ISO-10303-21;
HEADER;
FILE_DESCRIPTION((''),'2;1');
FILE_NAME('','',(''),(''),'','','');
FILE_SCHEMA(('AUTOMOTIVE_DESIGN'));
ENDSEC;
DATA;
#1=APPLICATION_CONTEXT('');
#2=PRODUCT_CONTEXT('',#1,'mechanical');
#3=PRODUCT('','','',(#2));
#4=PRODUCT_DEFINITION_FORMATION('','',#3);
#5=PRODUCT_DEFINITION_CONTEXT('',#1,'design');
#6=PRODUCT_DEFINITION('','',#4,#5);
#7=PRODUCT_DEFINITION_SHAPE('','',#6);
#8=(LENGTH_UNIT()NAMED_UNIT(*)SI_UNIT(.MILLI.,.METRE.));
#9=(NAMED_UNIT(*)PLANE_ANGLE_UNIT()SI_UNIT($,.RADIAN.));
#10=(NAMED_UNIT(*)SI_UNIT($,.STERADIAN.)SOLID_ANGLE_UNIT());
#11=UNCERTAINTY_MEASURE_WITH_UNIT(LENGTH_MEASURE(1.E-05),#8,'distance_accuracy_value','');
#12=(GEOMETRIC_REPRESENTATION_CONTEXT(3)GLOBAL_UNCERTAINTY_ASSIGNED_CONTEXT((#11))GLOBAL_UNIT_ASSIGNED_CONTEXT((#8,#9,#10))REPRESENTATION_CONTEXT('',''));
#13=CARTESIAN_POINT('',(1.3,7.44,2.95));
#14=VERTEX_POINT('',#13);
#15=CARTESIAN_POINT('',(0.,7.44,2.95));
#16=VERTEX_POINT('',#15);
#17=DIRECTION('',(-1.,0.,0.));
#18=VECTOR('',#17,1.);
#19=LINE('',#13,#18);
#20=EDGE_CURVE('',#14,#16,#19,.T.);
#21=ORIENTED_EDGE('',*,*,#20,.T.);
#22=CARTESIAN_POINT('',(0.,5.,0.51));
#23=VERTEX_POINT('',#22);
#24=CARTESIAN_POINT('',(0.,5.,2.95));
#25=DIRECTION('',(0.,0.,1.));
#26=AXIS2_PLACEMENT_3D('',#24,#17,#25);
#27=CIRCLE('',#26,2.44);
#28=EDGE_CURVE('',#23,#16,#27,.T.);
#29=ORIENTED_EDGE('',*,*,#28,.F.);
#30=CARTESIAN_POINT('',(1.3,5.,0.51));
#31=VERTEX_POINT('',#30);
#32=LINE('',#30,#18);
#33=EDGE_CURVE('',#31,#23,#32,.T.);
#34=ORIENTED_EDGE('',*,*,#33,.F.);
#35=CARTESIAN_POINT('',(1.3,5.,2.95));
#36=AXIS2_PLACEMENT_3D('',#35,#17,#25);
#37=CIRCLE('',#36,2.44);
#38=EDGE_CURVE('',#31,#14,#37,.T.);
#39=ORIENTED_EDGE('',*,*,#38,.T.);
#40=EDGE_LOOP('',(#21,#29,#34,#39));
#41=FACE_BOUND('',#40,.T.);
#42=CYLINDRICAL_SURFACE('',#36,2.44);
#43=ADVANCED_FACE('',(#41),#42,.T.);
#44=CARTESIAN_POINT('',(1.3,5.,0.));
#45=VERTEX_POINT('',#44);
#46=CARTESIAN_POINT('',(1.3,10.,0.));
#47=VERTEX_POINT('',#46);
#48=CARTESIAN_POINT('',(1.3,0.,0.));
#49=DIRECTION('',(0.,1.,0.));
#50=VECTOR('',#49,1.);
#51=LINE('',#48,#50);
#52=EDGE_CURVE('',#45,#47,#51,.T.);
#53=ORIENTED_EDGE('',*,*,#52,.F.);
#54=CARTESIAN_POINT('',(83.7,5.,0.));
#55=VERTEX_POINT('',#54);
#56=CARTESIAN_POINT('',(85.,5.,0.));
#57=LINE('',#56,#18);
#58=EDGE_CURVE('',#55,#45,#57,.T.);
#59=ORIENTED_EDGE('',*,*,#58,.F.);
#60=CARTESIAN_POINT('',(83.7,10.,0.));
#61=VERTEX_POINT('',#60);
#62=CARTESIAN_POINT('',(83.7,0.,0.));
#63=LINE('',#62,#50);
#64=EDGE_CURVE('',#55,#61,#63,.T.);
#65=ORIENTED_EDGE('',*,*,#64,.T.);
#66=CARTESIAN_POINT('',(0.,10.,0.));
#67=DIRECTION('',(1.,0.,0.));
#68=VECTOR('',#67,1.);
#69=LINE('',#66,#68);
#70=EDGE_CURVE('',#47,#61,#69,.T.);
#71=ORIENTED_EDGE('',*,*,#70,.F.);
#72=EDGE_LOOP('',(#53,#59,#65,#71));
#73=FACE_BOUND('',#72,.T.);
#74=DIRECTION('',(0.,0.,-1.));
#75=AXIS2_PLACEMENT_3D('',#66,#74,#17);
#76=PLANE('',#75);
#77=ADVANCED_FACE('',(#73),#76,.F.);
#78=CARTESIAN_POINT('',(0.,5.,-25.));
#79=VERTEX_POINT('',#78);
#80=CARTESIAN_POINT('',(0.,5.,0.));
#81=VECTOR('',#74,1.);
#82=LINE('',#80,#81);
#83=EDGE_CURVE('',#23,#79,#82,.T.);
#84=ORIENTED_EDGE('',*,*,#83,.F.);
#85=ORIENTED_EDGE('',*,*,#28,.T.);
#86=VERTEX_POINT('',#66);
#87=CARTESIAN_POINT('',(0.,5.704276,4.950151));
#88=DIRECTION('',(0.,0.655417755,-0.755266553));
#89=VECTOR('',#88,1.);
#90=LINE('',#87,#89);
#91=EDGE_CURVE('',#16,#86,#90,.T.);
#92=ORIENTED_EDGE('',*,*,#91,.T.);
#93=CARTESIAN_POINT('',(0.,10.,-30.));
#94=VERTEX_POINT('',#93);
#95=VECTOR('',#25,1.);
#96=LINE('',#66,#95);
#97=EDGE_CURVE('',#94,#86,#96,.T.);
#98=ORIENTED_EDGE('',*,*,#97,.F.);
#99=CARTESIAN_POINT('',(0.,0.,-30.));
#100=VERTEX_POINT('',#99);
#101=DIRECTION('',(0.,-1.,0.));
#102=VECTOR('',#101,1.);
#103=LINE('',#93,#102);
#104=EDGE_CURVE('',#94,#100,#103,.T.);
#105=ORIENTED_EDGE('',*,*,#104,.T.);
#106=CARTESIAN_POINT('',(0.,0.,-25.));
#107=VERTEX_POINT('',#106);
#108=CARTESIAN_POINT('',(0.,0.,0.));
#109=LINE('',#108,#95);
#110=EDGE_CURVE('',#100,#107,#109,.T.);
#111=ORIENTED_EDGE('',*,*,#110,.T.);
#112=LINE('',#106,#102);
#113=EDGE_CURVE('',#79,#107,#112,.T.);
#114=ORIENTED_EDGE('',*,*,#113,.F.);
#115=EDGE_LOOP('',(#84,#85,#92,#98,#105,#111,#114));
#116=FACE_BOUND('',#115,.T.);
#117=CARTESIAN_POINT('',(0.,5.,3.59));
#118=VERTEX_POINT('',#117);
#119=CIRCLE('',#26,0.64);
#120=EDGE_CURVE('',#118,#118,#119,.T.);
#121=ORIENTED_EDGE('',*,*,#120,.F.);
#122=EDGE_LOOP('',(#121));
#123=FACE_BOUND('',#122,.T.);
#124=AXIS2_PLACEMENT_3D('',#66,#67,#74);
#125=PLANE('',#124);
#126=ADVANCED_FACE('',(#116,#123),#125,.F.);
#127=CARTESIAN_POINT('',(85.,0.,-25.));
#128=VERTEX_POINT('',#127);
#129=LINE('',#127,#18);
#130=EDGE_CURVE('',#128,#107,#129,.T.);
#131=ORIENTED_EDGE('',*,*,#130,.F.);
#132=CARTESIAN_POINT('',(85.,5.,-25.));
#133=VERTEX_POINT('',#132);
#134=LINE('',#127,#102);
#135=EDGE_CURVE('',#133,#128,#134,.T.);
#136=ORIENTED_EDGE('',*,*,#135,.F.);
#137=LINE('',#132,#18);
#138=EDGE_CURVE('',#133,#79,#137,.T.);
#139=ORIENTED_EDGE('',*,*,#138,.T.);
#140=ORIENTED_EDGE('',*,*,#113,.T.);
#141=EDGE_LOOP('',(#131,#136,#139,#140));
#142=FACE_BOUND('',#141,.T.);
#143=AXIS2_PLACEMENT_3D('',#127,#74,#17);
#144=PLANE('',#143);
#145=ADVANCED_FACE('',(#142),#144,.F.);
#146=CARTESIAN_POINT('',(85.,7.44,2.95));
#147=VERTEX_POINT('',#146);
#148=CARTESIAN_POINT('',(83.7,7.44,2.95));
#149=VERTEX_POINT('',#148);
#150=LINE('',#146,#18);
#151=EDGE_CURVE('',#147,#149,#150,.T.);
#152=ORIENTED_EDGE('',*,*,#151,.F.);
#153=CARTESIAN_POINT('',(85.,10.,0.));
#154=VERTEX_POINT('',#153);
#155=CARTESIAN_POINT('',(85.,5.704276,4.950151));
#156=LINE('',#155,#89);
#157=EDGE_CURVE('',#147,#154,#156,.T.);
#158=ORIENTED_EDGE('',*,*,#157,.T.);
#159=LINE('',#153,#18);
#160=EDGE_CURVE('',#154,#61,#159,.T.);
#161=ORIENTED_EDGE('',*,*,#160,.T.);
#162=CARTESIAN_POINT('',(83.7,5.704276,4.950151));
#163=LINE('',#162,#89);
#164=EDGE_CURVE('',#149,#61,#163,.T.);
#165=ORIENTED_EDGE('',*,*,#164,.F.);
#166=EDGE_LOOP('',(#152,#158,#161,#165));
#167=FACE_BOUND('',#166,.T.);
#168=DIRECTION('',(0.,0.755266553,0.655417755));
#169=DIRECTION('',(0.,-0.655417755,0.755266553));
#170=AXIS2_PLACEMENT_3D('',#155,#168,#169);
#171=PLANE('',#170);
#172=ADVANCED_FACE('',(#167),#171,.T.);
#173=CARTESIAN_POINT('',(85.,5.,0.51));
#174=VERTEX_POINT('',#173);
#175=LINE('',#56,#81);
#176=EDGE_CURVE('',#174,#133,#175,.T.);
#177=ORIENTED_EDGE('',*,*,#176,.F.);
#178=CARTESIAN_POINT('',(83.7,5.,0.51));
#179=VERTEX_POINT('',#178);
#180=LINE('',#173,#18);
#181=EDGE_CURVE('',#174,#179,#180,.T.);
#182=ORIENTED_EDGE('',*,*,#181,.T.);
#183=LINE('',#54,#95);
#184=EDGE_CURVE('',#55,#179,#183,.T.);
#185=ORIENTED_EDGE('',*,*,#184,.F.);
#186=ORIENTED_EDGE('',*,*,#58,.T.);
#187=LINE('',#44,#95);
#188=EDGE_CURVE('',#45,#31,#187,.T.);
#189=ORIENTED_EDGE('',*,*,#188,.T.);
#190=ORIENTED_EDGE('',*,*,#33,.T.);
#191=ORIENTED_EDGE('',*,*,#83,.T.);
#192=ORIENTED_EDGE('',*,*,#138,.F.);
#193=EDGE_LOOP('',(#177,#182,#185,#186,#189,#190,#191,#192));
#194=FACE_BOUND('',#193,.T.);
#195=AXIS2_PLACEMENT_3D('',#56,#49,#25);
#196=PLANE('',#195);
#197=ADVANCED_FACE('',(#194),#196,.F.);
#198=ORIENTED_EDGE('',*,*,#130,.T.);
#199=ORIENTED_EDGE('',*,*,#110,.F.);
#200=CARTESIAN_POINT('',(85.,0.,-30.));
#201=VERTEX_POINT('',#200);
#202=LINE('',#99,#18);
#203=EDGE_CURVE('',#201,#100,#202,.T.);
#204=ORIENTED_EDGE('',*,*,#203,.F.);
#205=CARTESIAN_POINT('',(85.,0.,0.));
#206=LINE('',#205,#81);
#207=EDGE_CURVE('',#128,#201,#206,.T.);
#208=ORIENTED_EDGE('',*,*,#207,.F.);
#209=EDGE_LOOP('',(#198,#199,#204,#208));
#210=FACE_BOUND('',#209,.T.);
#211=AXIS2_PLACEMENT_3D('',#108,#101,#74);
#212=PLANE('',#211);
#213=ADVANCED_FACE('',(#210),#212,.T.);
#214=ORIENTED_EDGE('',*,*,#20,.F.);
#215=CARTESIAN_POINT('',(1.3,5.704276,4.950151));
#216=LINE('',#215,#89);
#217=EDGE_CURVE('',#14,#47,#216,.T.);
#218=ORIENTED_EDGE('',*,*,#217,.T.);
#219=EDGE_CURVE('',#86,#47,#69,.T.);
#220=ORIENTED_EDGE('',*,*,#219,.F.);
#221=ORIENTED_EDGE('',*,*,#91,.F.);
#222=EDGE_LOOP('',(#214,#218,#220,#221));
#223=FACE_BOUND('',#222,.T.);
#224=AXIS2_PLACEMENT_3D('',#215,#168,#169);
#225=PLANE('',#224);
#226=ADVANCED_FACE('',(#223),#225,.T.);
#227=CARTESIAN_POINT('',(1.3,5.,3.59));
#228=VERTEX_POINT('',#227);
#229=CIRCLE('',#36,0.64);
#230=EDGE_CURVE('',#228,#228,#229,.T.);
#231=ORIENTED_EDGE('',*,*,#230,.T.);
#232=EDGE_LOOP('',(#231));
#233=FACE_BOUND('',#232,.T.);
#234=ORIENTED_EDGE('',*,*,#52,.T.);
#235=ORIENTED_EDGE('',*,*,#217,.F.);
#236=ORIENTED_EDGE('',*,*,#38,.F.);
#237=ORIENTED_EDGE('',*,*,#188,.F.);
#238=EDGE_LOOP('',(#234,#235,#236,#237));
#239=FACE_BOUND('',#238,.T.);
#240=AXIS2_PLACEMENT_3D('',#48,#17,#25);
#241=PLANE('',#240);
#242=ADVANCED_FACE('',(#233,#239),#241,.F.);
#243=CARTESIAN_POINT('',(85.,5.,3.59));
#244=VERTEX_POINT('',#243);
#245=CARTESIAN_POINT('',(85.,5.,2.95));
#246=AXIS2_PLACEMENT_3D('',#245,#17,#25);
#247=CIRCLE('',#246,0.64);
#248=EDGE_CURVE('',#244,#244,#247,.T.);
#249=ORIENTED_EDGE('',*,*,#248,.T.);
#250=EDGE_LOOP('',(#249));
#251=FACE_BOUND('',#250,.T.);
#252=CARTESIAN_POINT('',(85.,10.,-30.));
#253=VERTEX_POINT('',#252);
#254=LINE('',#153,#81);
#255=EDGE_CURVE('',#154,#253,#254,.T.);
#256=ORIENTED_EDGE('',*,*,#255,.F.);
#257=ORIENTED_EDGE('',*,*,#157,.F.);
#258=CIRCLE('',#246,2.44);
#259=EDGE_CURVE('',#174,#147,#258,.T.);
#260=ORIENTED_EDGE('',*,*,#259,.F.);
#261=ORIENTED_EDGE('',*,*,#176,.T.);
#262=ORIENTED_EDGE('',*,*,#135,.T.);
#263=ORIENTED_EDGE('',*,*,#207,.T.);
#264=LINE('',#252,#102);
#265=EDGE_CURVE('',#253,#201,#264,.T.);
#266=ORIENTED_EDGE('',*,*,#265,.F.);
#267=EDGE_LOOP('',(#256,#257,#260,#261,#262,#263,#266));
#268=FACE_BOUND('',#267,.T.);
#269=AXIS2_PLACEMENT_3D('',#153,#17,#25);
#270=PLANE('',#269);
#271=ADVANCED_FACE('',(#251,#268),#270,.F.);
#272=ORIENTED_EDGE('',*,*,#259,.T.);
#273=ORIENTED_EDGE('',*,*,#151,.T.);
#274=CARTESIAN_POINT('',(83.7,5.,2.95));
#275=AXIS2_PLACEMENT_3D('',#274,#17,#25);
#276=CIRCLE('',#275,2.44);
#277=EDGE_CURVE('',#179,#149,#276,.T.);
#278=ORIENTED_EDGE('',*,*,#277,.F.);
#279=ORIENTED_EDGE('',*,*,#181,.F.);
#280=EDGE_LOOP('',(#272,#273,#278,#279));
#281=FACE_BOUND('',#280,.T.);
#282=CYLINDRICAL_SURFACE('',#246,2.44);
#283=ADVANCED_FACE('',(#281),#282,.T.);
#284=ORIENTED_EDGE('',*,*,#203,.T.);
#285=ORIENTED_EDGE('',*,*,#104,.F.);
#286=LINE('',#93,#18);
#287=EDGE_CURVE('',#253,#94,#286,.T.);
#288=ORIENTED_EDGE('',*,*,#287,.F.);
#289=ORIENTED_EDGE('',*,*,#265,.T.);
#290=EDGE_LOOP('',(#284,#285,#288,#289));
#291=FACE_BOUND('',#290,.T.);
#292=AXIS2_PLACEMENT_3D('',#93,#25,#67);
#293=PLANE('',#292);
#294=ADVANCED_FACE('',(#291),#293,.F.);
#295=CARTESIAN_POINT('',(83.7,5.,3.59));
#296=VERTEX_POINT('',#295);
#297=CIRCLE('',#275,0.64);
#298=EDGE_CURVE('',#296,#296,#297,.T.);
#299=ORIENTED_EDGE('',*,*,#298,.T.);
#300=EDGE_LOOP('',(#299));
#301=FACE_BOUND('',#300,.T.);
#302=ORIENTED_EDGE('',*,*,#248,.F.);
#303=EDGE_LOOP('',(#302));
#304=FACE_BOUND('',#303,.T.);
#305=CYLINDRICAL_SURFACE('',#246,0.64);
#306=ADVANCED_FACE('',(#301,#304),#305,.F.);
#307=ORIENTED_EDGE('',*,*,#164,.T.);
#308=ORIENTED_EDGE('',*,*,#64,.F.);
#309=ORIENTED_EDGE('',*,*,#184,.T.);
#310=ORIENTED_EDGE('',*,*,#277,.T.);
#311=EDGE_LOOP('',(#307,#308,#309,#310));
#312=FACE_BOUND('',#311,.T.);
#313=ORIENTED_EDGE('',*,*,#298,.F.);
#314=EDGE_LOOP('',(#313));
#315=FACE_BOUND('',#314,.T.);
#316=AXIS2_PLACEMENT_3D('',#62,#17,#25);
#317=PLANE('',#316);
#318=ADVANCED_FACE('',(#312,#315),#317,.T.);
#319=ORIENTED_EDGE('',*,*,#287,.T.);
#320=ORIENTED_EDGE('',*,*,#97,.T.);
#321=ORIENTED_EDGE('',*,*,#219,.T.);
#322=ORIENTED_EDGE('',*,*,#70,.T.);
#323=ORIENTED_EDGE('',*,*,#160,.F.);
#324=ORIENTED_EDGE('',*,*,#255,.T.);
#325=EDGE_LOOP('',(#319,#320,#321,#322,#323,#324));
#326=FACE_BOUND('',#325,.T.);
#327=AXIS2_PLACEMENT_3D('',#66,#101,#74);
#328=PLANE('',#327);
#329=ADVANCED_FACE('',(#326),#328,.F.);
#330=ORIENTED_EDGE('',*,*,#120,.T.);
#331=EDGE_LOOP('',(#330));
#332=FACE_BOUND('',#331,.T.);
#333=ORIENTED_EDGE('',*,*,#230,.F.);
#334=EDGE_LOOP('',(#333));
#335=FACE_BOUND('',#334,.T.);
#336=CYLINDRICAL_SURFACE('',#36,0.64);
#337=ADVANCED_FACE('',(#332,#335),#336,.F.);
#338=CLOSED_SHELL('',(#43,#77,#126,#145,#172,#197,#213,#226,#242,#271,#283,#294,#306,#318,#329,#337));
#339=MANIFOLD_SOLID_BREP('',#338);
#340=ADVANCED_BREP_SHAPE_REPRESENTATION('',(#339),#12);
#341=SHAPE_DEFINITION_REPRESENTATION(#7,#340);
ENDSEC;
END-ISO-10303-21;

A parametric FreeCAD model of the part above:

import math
import FreeCAD as App
import Part
import Sketcher

V = App.Vector
Q = App.Units.Quantity

doc = App.newDocument("Part")
params = doc.addObject("Spreadsheet::Sheet", "Params")
for row, (alias, value) in enumerate([
    ("sketch1_width", "85 mm"),
    ("sketch1_height", "30 mm"),
    ("pad1_length", "10 mm"),
    ("sketch2_width", "5 mm"),
    ("sketch2_height", "25 mm"),
    ("sketch3_diameter", "1.28 mm"),
    ("sketch3_width", "5 mm"),
    ("sketch3_radius", "2.44 mm"),
    ("sketch3_height", "0.51 mm"),
    ("pad2_length", "1.3 mm"),
    ("linearpattern_pitch", "83.7 mm"),
], start=1):
    params.set(f"A{row}", alias)
    params.set(f"B{row}", "=" + value)
    params.setAlias(f"B{row}", alias)

body = doc.addObject("PartDesign::Body", "Body")

# Sketch on XZ plane
sketch1 = body.newObject("Sketcher::SketchObject", "Sketch")
sketch1.AttachmentSupport = (doc.getObject("XZ_Plane"), [""])
sketch1.MapMode = "FlatFace"
sketch1.addGeometry(Part.LineSegment(V(0, -30, 0), V(0, 0, 0)), False)
sketch1.addGeometry(Part.LineSegment(V(0, 0, 0), V(85, 0, 0)), False)
sketch1.addGeometry(Part.LineSegment(V(85, 0, 0), V(85, -30, 0)), False)
sketch1.addGeometry(Part.LineSegment(V(85, -30, 0), V(0, -30, 0)), False)
sketch1.addConstraint(Sketcher.Constraint("Coincident", 0, 2, 1, 1))
sketch1.addConstraint(Sketcher.Constraint("Coincident", 1, 2, 2, 1))
sketch1.addConstraint(Sketcher.Constraint("Coincident", 2, 2, 3, 1))
sketch1.addConstraint(Sketcher.Constraint("Coincident", 3, 2, 0, 1))
sketch1.addConstraint(Sketcher.Constraint("Vertical", 0))
sketch1.addConstraint(Sketcher.Constraint("Horizontal", 1))
sketch1.addConstraint(Sketcher.Constraint("Vertical", 2))
sketch1.addConstraint(Sketcher.Constraint("Horizontal", 3))
sketch1.addConstraint(Sketcher.Constraint("Coincident", 0, 2, -1, 1))
sketch1.addConstraint(Sketcher.Constraint("DistanceX", 1, 1, 1, 2, Q("85 mm")))
sketch1.addConstraint(Sketcher.Constraint("DistanceY", 0, 1, 0, 2, Q("30 mm")))
sketch1.setExpression("Constraints[9]", "Params.sketch1_width")
sketch1.setExpression("Constraints[10]", "Params.sketch1_height")
pad1 = body.newObject("PartDesign::Pad", "Pad")
pad1.Profile = sketch1
pad1.setExpression("Length", "Params.pad1_length")
pad1.Reversed = True

# Sketch on YZ plane
sketch2 = body.newObject("Sketcher::SketchObject", "Sketch001")
sketch2.AttachmentSupport = (doc.getObject("YZ_Plane"), [""])
sketch2.MapMode = "FlatFace"
sketch2.addGeometry(Part.LineSegment(V(5, -25, 0), V(0, -25, 0)), False)
sketch2.addGeometry(Part.LineSegment(V(0, -25, 0), V(0, 0, 0)), False)
sketch2.addGeometry(Part.LineSegment(V(0, 0, 0), V(5, 0, 0)), False)
sketch2.addGeometry(Part.LineSegment(V(5, 0, 0), V(5, -25, 0)), False)
sketch2.addConstraint(Sketcher.Constraint("Coincident", 0, 2, 1, 1))
sketch2.addConstraint(Sketcher.Constraint("Coincident", 1, 2, 2, 1))
sketch2.addConstraint(Sketcher.Constraint("Coincident", 2, 2, 3, 1))
sketch2.addConstraint(Sketcher.Constraint("Coincident", 3, 2, 0, 1))
sketch2.addConstraint(Sketcher.Constraint("Horizontal", 0))
sketch2.addConstraint(Sketcher.Constraint("Vertical", 1))
sketch2.addConstraint(Sketcher.Constraint("Horizontal", 2))
sketch2.addConstraint(Sketcher.Constraint("Vertical", 3))
sketch2.addConstraint(Sketcher.Constraint("Coincident", 1, 2, -1, 1))
sketch2.addConstraint(Sketcher.Constraint("DistanceX", 0, 2, 0, 1, Q("5 mm")))
sketch2.addConstraint(Sketcher.Constraint("DistanceY", 1, 1, 1, 2, Q("25 mm")))
sketch2.setExpression("Constraints[9]", "Params.sketch2_width")
sketch2.setExpression("Constraints[10]", "Params.sketch2_height")
pocket1 = body.newObject("PartDesign::Pocket", "Pocket")
pocket1.Profile = sketch2
pocket1.Type = "ThroughAll"
pocket1.Reversed = True

# Sketch on YZ plane
sketch3 = body.newObject("Sketcher::SketchObject", "Sketch002")
sketch3.AttachmentSupport = (doc.getObject("YZ_Plane"), [""])
sketch3.MapMode = "FlatFace"
sketch3.addGeometry(Part.LineSegment(V(10, 0, 0), V(5, 0, 0)), False)
sketch3.addGeometry(Part.LineSegment(V(5, 0, 0), V(5, 0.51, 0)), False)
sketch3.addGeometry(Part.ArcOfCircle(Part.Circle(V(5, 2.95, 0), V(0, 0, 1), 2.44), math.radians(0), math.radians(270)), False)
sketch3.addGeometry(Part.LineSegment(V(7.44, 2.95, 0), V(10, 0, 0)), False)
sketch3.addGeometry(Part.Circle(V(5, 2.95, 0), V(0, 0, 1), 0.64), False)
sketch3.addConstraint(Sketcher.Constraint("Coincident", 0, 2, 1, 1))
sketch3.addConstraint(Sketcher.Constraint("Coincident", 1, 2, 2, 2))
sketch3.addConstraint(Sketcher.Constraint("Coincident", 2, 1, 3, 1))
sketch3.addConstraint(Sketcher.Constraint("Coincident", 3, 2, 0, 1))
sketch3.addConstraint(Sketcher.Constraint("Horizontal", 0))
sketch3.addConstraint(Sketcher.Constraint("Vertical", 1))
sketch3.addConstraint(Sketcher.Constraint("Coincident", 4, 3, 2, 3))
sketch3.addConstraint(Sketcher.Constraint("PointOnObject", 0, 2, -1))
sketch3.addConstraint(Sketcher.Constraint("Horizontal", 4, 3, 2, 1))
sketch3.addConstraint(Sketcher.Constraint("Vertical", 4, 3, 0, 2))
sketch3.addConstraint(Sketcher.Constraint("Diameter", 4, Q("1.28 mm")))
sketch3.addConstraint(Sketcher.Constraint("DistanceX", 0, 2, 0, 1, Q("5 mm")))
sketch3.addConstraint(Sketcher.Constraint("Radius", 2, Q("2.44 mm")))
sketch3.addConstraint(Sketcher.Constraint("DistanceX", -1, 1, 2, 3, Q("5 mm")))
sketch3.addConstraint(Sketcher.Constraint("DistanceY", 1, 1, 1, 2, Q("0.51 mm")))
sketch3.setExpression("Constraints[10]", "Params.sketch3_diameter")
sketch3.setExpression("Constraints[11]", "Params.sketch3_width")
sketch3.setExpression("Constraints[12]", "Params.sketch3_radius")
sketch3.setExpression("Constraints[14]", "Params.sketch3_height")
pad2 = body.newObject("PartDesign::Pad", "Pad001")
pad2.Profile = sketch3
pad2.setExpression("Length", "Params.pad2_length")
doc.recompute()

linearpattern = body.newObject("PartDesign::LinearPattern", "LinearPattern")
linearpattern.Originals = [pad2]
linearpattern.Direction = (doc.getObject("X_Axis"), [""])
linearpattern.Mode = "offset"
linearpattern.setExpression("Offset", "Params.linearpattern_pitch")
linearpattern.Occurrences = 2
body.Tip = linearpattern

doc.recompute()
